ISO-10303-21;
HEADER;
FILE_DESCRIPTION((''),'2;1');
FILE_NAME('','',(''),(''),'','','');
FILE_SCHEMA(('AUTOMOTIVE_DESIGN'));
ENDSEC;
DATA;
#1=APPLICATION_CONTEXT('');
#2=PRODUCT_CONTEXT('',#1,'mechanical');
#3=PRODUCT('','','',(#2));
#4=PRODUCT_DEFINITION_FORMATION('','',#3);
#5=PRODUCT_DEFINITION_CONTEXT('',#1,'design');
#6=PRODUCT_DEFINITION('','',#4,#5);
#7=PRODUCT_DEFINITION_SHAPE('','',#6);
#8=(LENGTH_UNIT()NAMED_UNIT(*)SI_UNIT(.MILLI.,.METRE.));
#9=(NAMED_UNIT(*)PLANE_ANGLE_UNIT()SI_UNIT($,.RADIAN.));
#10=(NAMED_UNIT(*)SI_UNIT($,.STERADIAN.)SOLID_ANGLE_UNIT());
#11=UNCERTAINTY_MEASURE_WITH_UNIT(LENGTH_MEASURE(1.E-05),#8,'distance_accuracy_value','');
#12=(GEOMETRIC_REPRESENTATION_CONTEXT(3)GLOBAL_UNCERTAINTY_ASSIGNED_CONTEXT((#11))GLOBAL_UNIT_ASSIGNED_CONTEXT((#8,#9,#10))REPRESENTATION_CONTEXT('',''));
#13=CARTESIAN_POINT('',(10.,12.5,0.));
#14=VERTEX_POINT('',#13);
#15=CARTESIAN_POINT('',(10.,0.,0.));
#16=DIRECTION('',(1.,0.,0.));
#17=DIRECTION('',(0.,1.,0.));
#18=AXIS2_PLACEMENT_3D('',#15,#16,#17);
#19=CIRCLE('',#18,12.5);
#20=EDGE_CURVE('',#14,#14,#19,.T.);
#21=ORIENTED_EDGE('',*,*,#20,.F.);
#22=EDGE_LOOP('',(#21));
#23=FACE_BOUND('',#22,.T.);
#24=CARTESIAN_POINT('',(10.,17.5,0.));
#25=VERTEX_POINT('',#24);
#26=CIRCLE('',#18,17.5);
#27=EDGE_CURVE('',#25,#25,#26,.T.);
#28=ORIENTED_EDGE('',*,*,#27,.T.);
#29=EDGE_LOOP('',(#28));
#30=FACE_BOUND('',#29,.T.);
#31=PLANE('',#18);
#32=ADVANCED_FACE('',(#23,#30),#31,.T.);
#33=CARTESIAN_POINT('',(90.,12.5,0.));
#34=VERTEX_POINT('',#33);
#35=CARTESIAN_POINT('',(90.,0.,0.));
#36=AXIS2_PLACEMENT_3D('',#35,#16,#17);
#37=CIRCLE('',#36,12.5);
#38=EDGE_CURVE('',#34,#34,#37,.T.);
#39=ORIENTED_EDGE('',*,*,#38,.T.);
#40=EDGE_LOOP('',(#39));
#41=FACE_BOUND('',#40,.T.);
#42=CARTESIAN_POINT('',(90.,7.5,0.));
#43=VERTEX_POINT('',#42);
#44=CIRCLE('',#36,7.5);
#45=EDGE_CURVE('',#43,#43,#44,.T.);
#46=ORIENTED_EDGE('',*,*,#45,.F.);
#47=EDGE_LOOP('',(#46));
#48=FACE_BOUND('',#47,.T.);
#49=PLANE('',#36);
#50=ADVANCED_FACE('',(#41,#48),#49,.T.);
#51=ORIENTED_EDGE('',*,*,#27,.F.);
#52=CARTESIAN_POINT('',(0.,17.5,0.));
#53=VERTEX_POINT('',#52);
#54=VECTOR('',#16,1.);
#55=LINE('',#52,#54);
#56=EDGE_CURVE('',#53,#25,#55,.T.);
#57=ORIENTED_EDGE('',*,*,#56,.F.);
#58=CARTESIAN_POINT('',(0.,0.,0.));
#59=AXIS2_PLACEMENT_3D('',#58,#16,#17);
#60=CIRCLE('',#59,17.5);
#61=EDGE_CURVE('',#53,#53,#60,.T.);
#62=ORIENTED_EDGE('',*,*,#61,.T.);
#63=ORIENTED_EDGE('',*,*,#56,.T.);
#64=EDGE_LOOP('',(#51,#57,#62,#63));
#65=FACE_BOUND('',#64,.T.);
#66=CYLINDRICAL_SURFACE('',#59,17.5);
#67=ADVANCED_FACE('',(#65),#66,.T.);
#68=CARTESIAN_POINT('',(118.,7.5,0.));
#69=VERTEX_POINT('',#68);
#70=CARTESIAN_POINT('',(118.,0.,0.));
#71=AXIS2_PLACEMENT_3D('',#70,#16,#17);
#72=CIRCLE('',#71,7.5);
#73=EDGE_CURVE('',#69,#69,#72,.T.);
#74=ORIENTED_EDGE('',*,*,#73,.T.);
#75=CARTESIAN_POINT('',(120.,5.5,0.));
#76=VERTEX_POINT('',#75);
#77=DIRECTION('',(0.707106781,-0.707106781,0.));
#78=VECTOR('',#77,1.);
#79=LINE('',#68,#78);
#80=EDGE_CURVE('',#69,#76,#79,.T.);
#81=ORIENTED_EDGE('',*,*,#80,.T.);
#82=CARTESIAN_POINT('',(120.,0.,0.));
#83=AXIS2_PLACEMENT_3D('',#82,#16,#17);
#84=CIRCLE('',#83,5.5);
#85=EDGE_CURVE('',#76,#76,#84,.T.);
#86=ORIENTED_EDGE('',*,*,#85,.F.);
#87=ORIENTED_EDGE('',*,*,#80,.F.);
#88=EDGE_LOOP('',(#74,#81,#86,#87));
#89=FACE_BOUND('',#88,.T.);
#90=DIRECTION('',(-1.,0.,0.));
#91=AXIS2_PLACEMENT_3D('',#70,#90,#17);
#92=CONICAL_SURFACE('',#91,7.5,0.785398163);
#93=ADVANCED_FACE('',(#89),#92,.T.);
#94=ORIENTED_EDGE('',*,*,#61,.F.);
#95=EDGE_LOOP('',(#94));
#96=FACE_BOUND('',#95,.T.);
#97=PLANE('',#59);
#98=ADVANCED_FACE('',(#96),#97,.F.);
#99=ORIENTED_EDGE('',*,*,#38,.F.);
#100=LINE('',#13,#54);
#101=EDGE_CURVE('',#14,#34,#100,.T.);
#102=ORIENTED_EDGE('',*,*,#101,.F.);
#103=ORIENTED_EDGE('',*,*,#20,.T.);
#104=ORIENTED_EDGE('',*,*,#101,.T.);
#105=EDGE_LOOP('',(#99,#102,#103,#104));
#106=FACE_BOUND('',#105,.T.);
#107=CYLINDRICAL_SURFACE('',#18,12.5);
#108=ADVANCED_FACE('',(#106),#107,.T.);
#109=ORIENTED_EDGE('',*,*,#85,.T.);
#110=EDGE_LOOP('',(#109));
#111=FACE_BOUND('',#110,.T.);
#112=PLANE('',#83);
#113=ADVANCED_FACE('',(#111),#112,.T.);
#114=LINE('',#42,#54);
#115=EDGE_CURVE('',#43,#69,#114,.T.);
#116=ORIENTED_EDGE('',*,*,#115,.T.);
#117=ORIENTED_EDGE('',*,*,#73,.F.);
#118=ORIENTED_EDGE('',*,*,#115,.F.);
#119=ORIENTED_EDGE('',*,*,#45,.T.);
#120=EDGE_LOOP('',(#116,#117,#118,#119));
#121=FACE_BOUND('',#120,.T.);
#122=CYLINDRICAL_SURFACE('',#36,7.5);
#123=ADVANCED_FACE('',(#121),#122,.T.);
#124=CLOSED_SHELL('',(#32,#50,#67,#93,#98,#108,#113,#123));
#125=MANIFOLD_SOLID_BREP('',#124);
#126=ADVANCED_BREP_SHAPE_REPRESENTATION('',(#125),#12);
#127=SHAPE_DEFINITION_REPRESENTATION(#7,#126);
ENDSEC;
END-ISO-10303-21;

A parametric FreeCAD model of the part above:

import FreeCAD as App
import Part
import Sketcher
from FreeCAD import Vector
Q = App.Units.Quantity


def edges_at(feature, points):
    """Names of the edges that pass closest to the given points."""
    edges = feature.Shape.Edges
    near = lambda p: min(range(len(edges)), key=lambda i: edges[i].distToShape(Part.Vertex(*p))[0])
    return sorted({f"Edge{near(p) + 1}" for p in points})

doc = App.newDocument("Part")
body = doc.addObject("PartDesign::Body", "Body")

# Sketch on XY plane
sketch1 = body.newObject("Sketcher::SketchObject", "Sketch")
sketch1.AttachmentSupport = (doc.getObject("XY_Plane"), [""])
sketch1.MapMode = "FlatFace"
sketch1.addGeometry(Part.LineSegment(Vector(0, 18, 0), Vector(0, 0, 0)), False)
sketch1.addGeometry(Part.LineSegment(Vector(0, 0, 0), Vector(120, 0, 0)), False)
sketch1.addGeometry(Part.LineSegment(Vector(120, 0, 0), Vector(120, 8, 0)), False)
sketch1.addGeometry(Part.LineSegment(Vector(120, 8, 0), Vector(90, 8, 0)), False)
sketch1.addGeometry(Part.LineSegment(Vector(90, 8, 0), Vector(90, 12, 0)), False)
sketch1.addGeometry(Part.LineSegment(Vector(90, 12, 0), Vector(10, 12, 0)), False)
sketch1.addGeometry(Part.LineSegment(Vector(10, 12, 0), Vector(10, 18, 0)), False)
sketch1.addGeometry(Part.LineSegment(Vector(10, 18, 0), Vector(0, 18, 0)), False)
sketch1.addConstraint(Sketcher.Constraint("Coincident", 0, 2, 1, 1))
sketch1.addConstraint(Sketcher.Constraint("Coincident", 1, 2, 2, 1))
sketch1.addConstraint(Sketcher.Constraint("Coincident", 2, 2, 3, 1))
sketch1.addConstraint(Sketcher.Constraint("Coincident", 3, 2, 4, 1))
sketch1.addConstraint(Sketcher.Constraint("Coincident", 4, 2, 5, 1))
sketch1.addConstraint(Sketcher.Constraint("Coincident", 5, 2, 6, 1))
sketch1.addConstraint(Sketcher.Constraint("Coincident", 6, 2, 7, 1))
sketch1.addConstraint(Sketcher.Constraint("Coincident", 7, 2, 0, 1))
sketch1.addConstraint(Sketcher.Constraint("Vertical", 0))
sketch1.addConstraint(Sketcher.Constraint("Horizontal", 1))
sketch1.addConstraint(Sketcher.Constraint("Vertical", 2))
sketch1.addConstraint(Sketcher.Constraint("Horizontal", 3))
sketch1.addConstraint(Sketcher.Constraint("Vertical", 4))
sketch1.addConstraint(Sketcher.Constraint("Horizontal", 5))
sketch1.addConstraint(Sketcher.Constraint("Vertical", 6))
sketch1.addConstraint(Sketcher.Constraint("Horizontal", 7))
sketch1.addConstraint(Sketcher.Constraint("Coincident", 0, 2, -1, 1))
sketch1.addConstraint(Sketcher.Constraint("Equal", 4, 6))
sketch1.addConstraint(Sketcher.Constraint("DistanceX", 1, 1, 1, 2, Q("120 mm")))
sketch1.addConstraint(Sketcher.Constraint("DistanceX", 3, 2, 3, 1, Q("30 mm")))
sketch1.addConstraint(Sketcher.Constraint("DistanceX", 5, 2, 5, 1, Q("80 mm")))
sketch1.addConstraint(Sketcher.Constraint("DistanceY", 4, 1, 4, 2, Q("5 mm")))
sketch1.addConstraint(Sketcher.Constraint("DistanceY", 0, 2, 0, 1, Q("17.5 mm")))
revolution = body.newObject("PartDesign::Revolution", "Revolution")
revolution.Profile = sketch1
revolution.ReferenceAxis = (sketch1, ["H_Axis"])
revolution.Angle = 360
doc.recompute()

chamfer = body.newObject("PartDesign::Chamfer", "Chamfer")
chamfer.Base = (revolution, edges_at(revolution, [(120, -7.5, 0)]))
chamfer.Size = 2

doc.recompute()
